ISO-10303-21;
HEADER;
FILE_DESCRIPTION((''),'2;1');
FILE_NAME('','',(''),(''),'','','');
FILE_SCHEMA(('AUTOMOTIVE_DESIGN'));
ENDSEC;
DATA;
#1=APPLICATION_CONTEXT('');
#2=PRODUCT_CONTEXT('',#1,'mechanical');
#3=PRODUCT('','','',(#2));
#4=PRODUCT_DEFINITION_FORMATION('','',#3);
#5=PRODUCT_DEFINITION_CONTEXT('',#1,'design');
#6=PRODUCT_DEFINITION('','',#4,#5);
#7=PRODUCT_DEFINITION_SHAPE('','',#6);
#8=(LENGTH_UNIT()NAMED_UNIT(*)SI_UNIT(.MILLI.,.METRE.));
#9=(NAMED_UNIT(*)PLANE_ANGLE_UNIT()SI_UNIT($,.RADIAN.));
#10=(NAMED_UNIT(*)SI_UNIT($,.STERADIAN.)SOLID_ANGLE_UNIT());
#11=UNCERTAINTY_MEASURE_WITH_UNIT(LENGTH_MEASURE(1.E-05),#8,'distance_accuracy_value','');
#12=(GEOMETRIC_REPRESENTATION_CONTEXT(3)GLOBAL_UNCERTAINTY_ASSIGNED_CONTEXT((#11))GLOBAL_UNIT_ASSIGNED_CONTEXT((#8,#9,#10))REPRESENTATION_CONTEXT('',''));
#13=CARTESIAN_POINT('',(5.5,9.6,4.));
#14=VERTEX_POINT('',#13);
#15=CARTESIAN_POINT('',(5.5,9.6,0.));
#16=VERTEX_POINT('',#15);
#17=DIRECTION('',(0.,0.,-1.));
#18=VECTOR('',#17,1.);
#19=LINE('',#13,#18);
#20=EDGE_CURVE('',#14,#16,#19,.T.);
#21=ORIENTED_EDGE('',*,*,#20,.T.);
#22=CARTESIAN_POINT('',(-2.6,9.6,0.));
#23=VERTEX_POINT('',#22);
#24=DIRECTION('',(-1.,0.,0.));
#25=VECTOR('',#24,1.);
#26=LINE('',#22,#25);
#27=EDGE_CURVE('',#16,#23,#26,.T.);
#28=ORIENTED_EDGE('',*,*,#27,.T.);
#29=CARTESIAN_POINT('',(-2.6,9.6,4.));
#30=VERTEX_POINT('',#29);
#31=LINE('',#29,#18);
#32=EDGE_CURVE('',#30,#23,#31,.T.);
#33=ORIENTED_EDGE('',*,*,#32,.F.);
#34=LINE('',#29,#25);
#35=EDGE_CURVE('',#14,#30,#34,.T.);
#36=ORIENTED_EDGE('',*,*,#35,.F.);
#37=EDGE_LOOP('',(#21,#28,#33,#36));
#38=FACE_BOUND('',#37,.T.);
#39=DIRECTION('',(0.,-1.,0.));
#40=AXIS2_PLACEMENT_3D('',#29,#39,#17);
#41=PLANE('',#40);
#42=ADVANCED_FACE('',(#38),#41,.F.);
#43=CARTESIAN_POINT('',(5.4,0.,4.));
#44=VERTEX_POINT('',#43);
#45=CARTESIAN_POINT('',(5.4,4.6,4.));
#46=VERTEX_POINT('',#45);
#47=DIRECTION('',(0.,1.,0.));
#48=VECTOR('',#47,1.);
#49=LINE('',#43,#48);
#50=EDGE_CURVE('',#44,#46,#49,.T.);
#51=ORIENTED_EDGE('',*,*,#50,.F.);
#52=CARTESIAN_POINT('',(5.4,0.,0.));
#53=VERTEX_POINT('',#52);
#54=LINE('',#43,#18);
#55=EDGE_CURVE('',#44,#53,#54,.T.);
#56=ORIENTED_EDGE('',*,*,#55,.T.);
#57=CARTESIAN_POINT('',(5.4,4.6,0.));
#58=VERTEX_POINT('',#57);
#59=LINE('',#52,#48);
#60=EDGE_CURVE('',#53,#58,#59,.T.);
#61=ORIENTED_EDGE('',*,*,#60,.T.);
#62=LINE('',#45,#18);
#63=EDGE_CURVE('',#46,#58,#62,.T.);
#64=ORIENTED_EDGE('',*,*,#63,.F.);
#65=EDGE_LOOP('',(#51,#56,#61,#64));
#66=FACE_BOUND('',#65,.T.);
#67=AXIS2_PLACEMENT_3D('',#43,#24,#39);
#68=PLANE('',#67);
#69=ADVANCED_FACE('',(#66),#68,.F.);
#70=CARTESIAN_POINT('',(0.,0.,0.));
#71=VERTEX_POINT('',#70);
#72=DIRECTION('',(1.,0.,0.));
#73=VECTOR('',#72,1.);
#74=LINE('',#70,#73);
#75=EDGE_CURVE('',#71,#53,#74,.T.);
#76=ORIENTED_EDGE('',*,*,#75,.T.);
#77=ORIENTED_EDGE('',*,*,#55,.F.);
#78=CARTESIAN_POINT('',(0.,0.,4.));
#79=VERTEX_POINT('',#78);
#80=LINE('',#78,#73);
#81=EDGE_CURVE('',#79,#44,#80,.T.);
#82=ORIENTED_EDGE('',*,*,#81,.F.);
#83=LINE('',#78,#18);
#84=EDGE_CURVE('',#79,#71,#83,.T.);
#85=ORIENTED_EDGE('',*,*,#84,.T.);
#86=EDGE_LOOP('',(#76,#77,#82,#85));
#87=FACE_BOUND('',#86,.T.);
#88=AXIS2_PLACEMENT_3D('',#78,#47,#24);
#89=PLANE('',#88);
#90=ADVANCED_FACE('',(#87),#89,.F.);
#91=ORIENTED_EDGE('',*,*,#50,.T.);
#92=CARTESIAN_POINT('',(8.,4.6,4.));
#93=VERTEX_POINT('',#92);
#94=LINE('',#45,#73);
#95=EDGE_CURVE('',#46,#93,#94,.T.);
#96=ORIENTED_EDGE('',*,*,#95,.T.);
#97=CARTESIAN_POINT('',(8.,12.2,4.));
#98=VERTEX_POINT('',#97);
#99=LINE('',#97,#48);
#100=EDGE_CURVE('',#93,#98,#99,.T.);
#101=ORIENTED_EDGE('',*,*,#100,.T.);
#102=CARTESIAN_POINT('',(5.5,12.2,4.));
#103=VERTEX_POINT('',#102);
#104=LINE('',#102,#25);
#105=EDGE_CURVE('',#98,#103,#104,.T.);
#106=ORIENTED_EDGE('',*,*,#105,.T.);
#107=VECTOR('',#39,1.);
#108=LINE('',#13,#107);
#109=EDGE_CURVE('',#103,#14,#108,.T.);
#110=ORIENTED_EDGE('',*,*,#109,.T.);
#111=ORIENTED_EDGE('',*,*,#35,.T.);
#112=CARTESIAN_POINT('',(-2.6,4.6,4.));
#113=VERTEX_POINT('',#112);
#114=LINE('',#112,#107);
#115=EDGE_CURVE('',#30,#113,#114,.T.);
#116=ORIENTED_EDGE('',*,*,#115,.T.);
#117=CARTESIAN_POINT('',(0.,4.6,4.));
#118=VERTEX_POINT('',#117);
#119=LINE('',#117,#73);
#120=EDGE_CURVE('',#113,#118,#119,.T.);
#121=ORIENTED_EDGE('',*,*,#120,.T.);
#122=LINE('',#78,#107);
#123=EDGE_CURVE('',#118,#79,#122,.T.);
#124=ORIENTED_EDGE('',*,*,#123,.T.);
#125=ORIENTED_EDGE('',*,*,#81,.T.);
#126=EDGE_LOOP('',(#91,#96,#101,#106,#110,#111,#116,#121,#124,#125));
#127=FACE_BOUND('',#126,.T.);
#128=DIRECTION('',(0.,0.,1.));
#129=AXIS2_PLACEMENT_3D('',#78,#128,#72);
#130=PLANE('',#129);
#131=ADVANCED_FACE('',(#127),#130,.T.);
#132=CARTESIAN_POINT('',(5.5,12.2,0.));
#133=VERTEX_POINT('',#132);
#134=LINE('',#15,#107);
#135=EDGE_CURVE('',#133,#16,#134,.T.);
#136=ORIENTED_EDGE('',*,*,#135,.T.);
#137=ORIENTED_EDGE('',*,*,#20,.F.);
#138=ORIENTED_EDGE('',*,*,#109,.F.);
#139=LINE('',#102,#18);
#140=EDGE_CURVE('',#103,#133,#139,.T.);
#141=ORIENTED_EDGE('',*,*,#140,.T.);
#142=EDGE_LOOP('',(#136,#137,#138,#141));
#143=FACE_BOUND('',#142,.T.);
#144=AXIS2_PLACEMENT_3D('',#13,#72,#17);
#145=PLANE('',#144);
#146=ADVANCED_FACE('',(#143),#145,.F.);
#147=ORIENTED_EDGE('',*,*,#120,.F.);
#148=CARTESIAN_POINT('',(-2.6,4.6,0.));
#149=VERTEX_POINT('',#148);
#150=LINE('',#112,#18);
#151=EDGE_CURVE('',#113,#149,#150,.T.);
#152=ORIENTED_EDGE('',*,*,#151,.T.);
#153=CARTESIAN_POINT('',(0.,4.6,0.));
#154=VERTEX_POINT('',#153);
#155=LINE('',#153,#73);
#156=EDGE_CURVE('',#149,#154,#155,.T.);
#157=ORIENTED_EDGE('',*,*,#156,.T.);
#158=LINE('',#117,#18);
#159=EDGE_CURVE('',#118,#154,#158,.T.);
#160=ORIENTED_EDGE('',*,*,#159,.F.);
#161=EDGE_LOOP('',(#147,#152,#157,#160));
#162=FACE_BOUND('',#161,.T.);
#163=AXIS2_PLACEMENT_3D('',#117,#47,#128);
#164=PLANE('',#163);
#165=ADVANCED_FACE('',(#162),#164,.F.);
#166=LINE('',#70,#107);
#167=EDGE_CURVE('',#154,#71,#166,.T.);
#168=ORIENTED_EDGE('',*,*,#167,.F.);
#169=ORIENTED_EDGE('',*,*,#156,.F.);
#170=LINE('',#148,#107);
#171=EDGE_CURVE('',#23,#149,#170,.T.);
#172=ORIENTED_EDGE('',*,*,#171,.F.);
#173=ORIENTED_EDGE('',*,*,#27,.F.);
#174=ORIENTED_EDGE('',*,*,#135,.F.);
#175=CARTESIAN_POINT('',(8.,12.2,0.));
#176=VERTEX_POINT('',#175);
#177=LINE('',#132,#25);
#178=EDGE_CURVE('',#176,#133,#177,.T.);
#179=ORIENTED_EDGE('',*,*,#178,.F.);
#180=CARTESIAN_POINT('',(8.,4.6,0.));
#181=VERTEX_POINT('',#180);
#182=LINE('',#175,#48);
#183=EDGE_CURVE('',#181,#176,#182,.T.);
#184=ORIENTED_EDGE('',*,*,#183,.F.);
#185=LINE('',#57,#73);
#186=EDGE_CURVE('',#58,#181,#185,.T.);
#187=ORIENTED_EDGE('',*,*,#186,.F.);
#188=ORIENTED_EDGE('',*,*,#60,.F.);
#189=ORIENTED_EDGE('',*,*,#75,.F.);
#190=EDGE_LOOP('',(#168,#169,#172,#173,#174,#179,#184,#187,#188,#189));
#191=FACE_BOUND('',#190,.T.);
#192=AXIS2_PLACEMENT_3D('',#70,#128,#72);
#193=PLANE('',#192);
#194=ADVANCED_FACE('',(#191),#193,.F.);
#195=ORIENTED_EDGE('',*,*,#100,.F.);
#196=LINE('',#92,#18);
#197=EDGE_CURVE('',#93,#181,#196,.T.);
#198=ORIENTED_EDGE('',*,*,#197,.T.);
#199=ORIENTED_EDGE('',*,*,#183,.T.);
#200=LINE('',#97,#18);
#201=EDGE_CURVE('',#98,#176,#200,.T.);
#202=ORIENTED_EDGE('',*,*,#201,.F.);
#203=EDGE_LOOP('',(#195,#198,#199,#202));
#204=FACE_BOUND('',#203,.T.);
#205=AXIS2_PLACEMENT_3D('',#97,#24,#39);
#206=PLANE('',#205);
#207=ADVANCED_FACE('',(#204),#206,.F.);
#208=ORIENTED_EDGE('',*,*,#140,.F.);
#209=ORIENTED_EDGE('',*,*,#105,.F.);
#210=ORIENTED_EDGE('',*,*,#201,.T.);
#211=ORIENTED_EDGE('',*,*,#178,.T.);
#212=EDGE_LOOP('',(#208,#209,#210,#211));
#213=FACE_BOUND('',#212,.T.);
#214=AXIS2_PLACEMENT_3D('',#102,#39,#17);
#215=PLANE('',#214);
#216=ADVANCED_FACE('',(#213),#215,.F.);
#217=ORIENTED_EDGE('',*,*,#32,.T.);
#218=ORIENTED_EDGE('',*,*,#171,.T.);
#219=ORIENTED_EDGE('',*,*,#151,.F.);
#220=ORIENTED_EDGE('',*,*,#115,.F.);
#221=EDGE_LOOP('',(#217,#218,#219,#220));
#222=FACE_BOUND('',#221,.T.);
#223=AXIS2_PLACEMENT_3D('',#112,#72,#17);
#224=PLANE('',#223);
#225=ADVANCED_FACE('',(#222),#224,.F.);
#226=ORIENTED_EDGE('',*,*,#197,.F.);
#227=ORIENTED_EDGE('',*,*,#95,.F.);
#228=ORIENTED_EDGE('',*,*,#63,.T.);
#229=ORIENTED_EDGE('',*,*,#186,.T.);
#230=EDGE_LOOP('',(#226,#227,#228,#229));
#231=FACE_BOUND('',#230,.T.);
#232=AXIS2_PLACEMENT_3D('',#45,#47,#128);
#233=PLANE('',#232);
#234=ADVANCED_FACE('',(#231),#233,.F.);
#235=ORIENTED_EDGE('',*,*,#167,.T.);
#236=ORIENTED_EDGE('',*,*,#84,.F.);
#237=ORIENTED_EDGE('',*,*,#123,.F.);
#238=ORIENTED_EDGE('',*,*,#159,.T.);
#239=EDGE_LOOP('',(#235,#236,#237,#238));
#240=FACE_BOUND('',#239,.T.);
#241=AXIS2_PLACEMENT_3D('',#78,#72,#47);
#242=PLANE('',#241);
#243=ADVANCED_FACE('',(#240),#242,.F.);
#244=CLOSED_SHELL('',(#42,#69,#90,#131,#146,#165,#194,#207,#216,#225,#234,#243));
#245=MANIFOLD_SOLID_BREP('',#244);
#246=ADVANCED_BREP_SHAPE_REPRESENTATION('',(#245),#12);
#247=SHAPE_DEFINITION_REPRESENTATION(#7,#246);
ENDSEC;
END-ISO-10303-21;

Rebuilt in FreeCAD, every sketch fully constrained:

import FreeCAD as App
import Part
import Sketcher


def add_polygon(sketch, points):
    """Adds a closed chain of lines whose ends are joined by coincident constraints."""
    first, n = sketch.GeometryCount, len(points)
    for a, b in zip(points, points[1:] + points[:1]):
        sketch.addGeometry(Part.LineSegment(App.Vector(*a, 0), App.Vector(*b, 0)), False)
    for i in range(n):
        sketch.addConstraint(Sketcher.Constraint("Coincident", first + i, 2, first + (i + 1) % n, 1))

doc = App.newDocument("Part")
params = doc.addObject("Spreadsheet::Sheet", "Params")
for row, (alias, value) in enumerate([
    ("sketch1_height", "5 mm"),
    ("sketch1_width", "5.4 mm"),
    ("sketch1_width2", "2.6 mm"),
    ("sketch1_width3", "2.5 mm"),
    ("sketch1_height2", "4.6 mm"),
    ("pad1_length", "4 mm"),
], start=1):
    params.set(f"A{row}", alias)
    params.set(f"B{row}", "=" + value)
    params.setAlias(f"B{row}", alias)

body = doc.addObject("PartDesign::Body", "Body")

# Sketch on XY plane
sketch1 = body.newObject("Sketcher::SketchObject", "Sketch")
sketch1.AttachmentSupport = (doc.getObject("XY_Plane"), [""])
sketch1.MapMode = "FlatFace"
add_polygon(sketch1, [(0, 0), (5.4, 0), (5.4, 4.6), (8, 4.6), (8, 12.2), (5.5, 12.2), (5.5, 9.6), (-2.6, 9.6), (-2.6, 4.6), (0, 4.6)])  # lines 0-9
sketch1.addConstraint(Sketcher.Constraint("Horizontal", 0))
sketch1.addConstraint(Sketcher.Constraint("Vertical", 1))
sketch1.addConstraint(Sketcher.Constraint("Horizontal", 2))
sketch1.addConstraint(Sketcher.Constraint("Vertical", 3))
sketch1.addConstraint(Sketcher.Constraint("Horizontal", 4))
sketch1.addConstraint(Sketcher.Constraint("Vertical", 5))
sketch1.addConstraint(Sketcher.Constraint("Horizontal", 6))
sketch1.addConstraint(Sketcher.Constraint("Vertical", 7))
sketch1.addConstraint(Sketcher.Constraint("Horizontal", 8))
sketch1.addConstraint(Sketcher.Constraint("Vertical", 9))
sketch1.addConstraint(Sketcher.Constraint("Coincident", 9, 2, -1, 1))
sketch1.addConstraint(Sketcher.Constraint("Horizontal", 2, 2, 7, 2))
sketch1.addConstraint(Sketcher.Constraint("Equal", 2, 8))
sketch1.addConstraint(Sketcher.Constraint("Equal", 8, 5))
sketch1.addConstraint(Sketcher.Constraint("DistanceY", 7, 2, 7, 1, 5.0))
sketch1.addConstraint(Sketcher.Constraint("DistanceX", 0, 1, 0, 2, 5.4))
sketch1.addConstraint(Sketcher.Constraint("DistanceX", 2, 1, 2, 2, 2.6))
sketch1.addConstraint(Sketcher.Constraint("DistanceX", 4, 2, 4, 1, 2.5))
sketch1.addConstraint(Sketcher.Constraint("DistanceY", 1, 1, 1, 2, 4.6))
sketch1.setExpression("Constraints[24]", "Params.sketch1_height")
sketch1.setExpression("Constraints[25]", "Params.sketch1_width")
sketch1.setExpression("Constraints[26]", "Params.sketch1_width2")
sketch1.setExpression("Constraints[27]", "Params.sketch1_width3")
sketch1.setExpression("Constraints[28]", "Params.sketch1_height2")
pad1 = body.newObject("PartDesign::Pad", "Pad")
pad1.Profile = sketch1
pad1.setExpression("Length", "Params.pad1_length")

doc.recompute()
